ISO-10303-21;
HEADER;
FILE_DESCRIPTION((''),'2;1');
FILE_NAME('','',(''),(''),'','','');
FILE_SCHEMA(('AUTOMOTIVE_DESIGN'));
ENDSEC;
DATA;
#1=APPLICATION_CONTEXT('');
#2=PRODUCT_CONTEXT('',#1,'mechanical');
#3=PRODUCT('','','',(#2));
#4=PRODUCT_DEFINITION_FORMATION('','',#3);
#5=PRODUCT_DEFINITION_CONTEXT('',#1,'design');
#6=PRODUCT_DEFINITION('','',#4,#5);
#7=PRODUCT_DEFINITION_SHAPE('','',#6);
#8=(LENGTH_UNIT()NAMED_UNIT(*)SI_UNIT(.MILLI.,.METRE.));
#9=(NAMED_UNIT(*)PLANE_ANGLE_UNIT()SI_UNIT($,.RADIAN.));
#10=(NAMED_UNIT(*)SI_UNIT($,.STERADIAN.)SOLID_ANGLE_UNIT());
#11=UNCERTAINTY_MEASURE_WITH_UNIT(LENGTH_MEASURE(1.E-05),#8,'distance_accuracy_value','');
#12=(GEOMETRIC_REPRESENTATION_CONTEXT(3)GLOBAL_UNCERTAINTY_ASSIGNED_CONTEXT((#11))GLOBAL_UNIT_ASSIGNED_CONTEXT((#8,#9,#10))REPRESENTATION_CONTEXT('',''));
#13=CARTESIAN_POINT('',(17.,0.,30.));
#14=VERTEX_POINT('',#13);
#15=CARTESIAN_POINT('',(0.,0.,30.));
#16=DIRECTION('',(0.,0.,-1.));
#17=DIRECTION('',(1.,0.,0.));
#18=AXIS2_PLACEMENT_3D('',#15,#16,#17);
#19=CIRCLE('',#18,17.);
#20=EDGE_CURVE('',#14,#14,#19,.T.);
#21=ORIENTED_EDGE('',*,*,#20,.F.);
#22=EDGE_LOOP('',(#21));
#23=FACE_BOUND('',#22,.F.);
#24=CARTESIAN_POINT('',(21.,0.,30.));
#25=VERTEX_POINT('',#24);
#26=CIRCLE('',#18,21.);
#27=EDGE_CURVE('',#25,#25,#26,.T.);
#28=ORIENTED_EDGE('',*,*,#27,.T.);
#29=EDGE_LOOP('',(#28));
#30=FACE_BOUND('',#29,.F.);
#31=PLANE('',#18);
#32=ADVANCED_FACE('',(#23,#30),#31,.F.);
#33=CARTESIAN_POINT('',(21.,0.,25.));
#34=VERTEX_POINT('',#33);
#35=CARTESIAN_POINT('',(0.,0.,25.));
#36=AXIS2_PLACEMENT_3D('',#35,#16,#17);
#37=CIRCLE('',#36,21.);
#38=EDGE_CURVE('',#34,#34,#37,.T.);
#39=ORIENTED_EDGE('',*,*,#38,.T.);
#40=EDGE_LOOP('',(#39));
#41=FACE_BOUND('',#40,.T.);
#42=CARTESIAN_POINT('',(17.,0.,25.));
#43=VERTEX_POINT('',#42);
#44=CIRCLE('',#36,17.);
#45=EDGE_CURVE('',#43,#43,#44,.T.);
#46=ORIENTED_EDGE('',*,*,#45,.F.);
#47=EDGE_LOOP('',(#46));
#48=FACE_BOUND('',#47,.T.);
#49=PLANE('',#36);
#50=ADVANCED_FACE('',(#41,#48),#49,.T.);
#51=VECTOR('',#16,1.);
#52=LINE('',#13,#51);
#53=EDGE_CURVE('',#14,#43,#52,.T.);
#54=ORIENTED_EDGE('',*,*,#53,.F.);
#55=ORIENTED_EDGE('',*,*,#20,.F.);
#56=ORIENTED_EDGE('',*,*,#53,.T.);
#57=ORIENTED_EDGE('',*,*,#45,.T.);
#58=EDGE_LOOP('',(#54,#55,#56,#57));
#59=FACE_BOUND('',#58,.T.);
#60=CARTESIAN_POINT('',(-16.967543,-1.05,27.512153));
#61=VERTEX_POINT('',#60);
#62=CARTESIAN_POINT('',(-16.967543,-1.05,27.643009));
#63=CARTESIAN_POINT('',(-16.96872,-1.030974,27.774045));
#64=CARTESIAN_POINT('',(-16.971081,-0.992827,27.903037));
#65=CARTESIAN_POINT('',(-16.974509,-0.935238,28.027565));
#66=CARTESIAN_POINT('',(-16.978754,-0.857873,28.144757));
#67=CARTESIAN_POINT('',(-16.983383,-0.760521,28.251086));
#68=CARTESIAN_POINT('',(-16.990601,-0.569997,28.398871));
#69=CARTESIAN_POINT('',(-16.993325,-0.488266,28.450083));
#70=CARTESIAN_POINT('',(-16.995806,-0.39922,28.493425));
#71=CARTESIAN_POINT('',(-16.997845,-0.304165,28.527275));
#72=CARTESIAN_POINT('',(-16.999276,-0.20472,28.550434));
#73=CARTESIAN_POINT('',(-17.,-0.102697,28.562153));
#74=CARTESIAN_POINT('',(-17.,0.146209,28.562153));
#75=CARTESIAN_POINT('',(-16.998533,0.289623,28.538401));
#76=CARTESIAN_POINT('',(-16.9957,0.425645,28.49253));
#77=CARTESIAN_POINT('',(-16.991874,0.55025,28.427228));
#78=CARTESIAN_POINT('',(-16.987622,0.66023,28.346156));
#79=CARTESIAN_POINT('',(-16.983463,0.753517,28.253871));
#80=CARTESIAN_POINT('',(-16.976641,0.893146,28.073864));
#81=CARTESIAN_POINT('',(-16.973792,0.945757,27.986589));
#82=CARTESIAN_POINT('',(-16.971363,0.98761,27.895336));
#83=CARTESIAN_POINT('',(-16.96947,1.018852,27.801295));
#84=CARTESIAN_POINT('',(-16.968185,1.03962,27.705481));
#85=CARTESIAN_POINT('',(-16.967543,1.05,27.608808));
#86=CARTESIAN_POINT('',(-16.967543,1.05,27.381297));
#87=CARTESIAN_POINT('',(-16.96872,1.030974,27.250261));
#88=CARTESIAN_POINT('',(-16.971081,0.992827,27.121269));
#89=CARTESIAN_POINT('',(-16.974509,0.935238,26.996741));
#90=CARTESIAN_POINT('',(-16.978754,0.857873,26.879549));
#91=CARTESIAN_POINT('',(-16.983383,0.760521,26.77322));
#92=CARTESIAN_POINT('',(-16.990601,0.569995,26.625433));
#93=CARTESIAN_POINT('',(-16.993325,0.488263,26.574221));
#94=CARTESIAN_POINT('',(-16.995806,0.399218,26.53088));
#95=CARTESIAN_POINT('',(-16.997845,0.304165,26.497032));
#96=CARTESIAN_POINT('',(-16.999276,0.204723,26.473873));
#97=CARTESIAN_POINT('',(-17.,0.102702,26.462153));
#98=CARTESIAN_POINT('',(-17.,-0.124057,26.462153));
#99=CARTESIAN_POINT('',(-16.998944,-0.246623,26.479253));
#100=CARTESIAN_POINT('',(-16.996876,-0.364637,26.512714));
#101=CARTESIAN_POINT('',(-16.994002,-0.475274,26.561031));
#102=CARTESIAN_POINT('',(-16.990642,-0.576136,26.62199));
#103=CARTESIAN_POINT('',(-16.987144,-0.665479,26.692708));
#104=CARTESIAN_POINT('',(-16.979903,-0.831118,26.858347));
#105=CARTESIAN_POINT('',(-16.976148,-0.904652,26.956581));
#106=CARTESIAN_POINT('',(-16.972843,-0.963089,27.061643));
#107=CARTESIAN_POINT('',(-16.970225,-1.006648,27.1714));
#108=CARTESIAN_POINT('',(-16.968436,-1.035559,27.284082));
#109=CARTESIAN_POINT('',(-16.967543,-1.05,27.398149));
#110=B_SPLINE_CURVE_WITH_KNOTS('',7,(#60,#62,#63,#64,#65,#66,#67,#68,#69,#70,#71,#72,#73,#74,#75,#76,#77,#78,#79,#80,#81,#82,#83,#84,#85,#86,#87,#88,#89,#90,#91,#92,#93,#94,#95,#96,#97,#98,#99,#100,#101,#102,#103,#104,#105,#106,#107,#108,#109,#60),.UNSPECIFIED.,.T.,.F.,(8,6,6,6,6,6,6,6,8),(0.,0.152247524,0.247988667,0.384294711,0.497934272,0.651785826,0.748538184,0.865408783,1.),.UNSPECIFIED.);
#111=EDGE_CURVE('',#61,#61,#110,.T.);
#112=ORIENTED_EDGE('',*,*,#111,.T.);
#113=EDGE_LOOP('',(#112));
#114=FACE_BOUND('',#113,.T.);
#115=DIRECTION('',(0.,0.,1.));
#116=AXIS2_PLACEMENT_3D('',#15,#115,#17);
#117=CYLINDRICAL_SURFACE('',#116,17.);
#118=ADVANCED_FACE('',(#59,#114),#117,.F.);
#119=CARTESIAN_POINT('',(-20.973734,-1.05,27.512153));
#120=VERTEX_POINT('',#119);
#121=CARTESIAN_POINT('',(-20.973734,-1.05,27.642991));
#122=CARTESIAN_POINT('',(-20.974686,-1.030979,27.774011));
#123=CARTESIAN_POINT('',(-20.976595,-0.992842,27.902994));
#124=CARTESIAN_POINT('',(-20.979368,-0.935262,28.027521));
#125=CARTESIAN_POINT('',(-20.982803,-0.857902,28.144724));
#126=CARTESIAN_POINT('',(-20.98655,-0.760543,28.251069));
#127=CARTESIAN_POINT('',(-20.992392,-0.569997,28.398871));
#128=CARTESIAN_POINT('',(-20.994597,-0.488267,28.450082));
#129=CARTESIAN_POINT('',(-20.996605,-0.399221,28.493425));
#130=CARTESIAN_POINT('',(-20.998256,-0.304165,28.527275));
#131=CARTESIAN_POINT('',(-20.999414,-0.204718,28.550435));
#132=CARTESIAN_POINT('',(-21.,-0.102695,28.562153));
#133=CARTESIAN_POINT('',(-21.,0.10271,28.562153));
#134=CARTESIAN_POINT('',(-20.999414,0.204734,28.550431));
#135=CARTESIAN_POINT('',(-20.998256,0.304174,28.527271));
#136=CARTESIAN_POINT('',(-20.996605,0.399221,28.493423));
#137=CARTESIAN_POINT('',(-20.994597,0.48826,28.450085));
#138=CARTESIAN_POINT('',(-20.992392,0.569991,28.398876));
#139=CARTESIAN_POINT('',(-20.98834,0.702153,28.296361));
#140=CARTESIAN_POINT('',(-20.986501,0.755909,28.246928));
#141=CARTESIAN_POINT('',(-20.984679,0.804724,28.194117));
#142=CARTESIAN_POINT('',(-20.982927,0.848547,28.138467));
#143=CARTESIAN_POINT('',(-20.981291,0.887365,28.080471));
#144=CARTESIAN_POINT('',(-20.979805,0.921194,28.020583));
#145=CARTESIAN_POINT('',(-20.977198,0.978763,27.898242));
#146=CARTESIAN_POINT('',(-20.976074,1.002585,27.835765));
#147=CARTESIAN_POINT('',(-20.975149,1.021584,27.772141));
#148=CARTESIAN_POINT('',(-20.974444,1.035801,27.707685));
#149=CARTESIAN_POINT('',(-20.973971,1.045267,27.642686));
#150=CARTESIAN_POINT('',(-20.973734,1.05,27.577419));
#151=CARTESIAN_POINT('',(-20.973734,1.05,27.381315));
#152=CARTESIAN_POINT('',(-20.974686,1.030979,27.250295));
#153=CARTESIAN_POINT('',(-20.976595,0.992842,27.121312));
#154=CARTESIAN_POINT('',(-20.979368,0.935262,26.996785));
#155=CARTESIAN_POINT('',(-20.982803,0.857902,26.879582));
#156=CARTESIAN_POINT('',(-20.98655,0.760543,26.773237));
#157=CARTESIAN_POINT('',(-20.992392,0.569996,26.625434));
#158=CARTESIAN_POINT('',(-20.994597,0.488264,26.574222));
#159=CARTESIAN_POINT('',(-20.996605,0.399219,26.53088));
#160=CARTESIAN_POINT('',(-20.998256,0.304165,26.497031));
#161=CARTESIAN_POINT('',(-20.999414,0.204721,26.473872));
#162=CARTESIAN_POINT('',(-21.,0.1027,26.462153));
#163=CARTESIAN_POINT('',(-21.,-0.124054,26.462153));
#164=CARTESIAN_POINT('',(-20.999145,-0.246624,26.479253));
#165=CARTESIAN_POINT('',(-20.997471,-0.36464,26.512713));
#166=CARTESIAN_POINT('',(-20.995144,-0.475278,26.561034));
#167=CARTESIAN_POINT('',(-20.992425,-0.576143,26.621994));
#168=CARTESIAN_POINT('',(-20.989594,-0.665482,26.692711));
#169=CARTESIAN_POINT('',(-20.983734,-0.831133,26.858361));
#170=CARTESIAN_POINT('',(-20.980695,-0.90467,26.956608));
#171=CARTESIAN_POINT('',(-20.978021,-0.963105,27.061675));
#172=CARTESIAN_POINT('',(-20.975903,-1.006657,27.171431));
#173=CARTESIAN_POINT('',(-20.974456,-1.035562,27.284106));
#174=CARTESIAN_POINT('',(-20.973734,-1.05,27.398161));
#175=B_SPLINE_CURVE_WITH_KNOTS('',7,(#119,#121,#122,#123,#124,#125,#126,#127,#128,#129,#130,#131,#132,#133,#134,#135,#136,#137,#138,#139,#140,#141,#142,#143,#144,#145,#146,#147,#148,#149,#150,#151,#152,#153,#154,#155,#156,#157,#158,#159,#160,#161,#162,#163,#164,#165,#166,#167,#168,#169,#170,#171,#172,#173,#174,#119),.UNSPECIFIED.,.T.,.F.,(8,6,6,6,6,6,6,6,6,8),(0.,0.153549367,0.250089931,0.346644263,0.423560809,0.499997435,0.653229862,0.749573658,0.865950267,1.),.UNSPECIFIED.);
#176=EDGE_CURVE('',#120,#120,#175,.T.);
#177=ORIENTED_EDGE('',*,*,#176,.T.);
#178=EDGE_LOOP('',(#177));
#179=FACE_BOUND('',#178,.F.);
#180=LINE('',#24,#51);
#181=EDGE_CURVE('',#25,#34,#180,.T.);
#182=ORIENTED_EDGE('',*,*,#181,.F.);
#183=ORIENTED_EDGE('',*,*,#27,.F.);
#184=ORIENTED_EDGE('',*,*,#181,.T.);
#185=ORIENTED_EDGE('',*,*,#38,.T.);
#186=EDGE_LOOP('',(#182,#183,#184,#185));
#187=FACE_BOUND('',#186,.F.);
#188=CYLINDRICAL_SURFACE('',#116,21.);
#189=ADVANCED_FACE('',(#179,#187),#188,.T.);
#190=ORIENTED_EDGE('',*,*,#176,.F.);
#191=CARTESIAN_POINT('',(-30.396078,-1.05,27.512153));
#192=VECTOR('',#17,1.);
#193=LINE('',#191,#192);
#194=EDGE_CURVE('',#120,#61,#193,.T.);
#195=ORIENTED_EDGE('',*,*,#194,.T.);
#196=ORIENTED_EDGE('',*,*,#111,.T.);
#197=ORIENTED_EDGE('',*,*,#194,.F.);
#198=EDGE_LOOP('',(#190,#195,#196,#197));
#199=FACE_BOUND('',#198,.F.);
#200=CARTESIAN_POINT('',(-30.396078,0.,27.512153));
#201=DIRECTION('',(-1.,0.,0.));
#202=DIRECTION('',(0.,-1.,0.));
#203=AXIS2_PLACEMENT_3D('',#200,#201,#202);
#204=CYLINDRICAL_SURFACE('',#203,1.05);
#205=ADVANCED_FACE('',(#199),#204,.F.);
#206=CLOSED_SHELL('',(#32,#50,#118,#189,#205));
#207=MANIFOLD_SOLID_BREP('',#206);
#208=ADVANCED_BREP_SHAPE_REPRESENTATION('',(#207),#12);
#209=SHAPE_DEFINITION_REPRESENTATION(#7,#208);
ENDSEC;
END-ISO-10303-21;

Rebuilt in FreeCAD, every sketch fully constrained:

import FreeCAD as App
import Part
import Sketcher
Q = App.Units.Quantity

doc = App.newDocument("Part")
body = doc.addObject("PartDesign::Body", "Body")

sketch1 = body.newObject("Sketcher::SketchObject", "Sketch")
sketch1.AttachmentSupport = (doc.getObject("YZ_Plane"), [""])
sketch1.MapMode = "FlatFace"
sketch1.AttachmentOffset = App.Placement(App.Vector(0, 0, -30.396078), App.Rotation())
sketch1.addGeometry(Part.Circle(App.Vector(0, 27.512153, 0), App.Vector(0, 0, 1), 1.05), False)
sketch1.addConstraint(Sketcher.Constraint("PointOnObject", 0, 3, -2))
sketch1.addConstraint(Sketcher.Constraint("Diameter", 0, Q("2.1 mm")))
sketch1.addConstraint(Sketcher.Constraint("DistanceY", -1, 1, 0, 3, Q("27.512153 mm")))
pad1 = body.newObject("PartDesign::Pad", "Pad")
pad1.Profile = sketch1
pad1.Length = 30
body2 = doc.addObject("PartDesign::Body", "Body001")

sketch2 = body2.newObject("Sketcher::SketchObject", "Sketch001")
sketch2.AttachmentSupport = (doc.getObject("XY_Plane001"), [""])
sketch2.MapMode = "FlatFace"
sketch2.AttachmentOffset = App.Placement(App.Vector(0, 0, 30), App.Rotation())
sketch2.addGeometry(Part.Circle(App.Vector(0, 0, 0), App.Vector(0, 0, 1), 21), False)
sketch2.addGeometry(Part.Circle(App.Vector(0, 0, 0), App.Vector(0, 0, 1), 17), False)
sketch2.addConstraint(Sketcher.Constraint("Coincident", 0, 3, -1, 1))
sketch2.addConstraint(Sketcher.Constraint("Coincident", 1, 3, -1, 1))
sketch2.addConstraint(Sketcher.Constraint("Diameter", 0, Q("42 mm")))
sketch2.addConstraint(Sketcher.Constraint("Diameter", 1, Q("34 mm")))
pad2 = body2.newObject("PartDesign::Pad", "Pad001")
pad2.Profile = sketch2
pad2.Length = 5
pad2.Reversed = True
doc.recompute()

boolean = body2.newObject("PartDesign::Boolean", "Boolean")
boolean.Type = "Cut"
boolean.addObjects([body])

doc.recompute()
